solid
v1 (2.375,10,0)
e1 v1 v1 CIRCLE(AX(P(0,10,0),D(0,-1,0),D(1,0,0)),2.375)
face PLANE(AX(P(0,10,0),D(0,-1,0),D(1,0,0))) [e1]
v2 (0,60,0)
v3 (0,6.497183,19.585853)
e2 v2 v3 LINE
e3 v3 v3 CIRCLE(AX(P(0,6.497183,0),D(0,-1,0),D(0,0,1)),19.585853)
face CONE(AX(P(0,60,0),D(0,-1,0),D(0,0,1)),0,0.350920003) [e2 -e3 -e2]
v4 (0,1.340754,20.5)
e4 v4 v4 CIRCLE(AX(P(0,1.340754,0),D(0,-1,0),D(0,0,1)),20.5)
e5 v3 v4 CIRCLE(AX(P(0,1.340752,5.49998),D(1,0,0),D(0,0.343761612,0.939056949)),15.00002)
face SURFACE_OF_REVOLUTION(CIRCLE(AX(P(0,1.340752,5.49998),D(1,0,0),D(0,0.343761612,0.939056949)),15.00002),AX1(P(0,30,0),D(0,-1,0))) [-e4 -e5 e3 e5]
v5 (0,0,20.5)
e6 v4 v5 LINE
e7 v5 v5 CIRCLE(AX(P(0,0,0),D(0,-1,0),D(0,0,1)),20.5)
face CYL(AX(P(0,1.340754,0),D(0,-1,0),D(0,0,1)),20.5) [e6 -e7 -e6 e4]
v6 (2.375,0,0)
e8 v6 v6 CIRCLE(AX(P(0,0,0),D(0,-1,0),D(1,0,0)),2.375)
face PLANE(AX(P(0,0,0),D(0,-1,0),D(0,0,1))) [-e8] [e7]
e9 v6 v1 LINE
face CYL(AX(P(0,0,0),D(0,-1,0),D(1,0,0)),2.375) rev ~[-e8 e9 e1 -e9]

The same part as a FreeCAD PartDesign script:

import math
import FreeCAD as App
import Part
import Sketcher

doc = App.newDocument("Part")
body = doc.addObject("PartDesign::Body", "Body")

# Sketch on YZ plane
sketch1 = body.newObject("Sketcher::SketchObject", "Sketch")
sketch1.AttachmentSupport = (doc.getObject("YZ_Plane"), [""])
sketch1.MapMode = "FlatFace"
sketch1.addGeometry(Part.LineSegment(App.Vector(0, 20.5, 0), App.Vector(0, 0, 0)), False)
sketch1.addGeometry(Part.LineSegment(App.Vector(0, 0, 0), App.Vector(60, 0, 0)), False)
sketch1.addGeometry(Part.LineSegment(App.Vector(60, 0, 0), App.Vector(6.5, 19.6, 0)), False)
sketch1.addGeometry(Part.ArcOfCircle(Part.Circle(App.Vector(1.3, 5.5, 0), App.Vector(0, 0, 1), 15), math.radians(70), math.radians(90)), False)
sketch1.addGeometry(Part.LineSegment(App.Vector(1.3, 20.5, 0), App.Vector(0, 20.5, 0)), False)
sketch1.addConstraint(Sketcher.Constraint("Coincident", 0, 2, 1, 1))
sketch1.addConstraint(Sketcher.Constraint("Coincident", 1, 2, 2, 1))
sketch1.addConstraint(Sketcher.Constraint("Tangent", 2, 2, 3, 1))
sketch1.addConstraint(Sketcher.Constraint("Tangent", 3, 2, 4, 1))
sketch1.addConstraint(Sketcher.Constraint("Coincident", 4, 2, 0, 1))
sketch1.addConstraint(Sketcher.Constraint("Vertical", 0))
sketch1.addConstraint(Sketcher.Constraint("Horizontal", 1))
sketch1.addConstraint(Sketcher.Constraint("Horizontal", 4))
sketch1.addConstraint(Sketcher.Constraint("Coincident", 0, 2, -1, 1))
sketch1.addConstraint(Sketcher.Constraint("DistanceX", 1, 1, 1, 2, 60.0))
sketch1.addConstraint(Sketcher.Constraint("DistanceY", 0, 2, 0, 1, 20.5))
sketch1.addConstraint(Sketcher.Constraint("Radius", 3, 15.00002))
sketch1.addConstraint(Sketcher.Constraint("DistanceX", 4, 2, 4, 1, 1.340754))
revolution = body.newObject("PartDesign::Revolution", "Revolution")
revolution.Profile = sketch1
revolution.ReferenceAxis = (sketch1, ["H_Axis"])
revolution.Angle = 360

# Sketch on XZ plane
sketch2 = body.newObject("Sketcher::SketchObject", "Sketch001")
sketch2.AttachmentSupport = (doc.getObject("XZ_Plane"), [""])
sketch2.MapMode = "FlatFace"
sketch2.addGeometry(Part.Circle(App.Vector(0, 0, 0), App.Vector(0, 0, 1), 2.4), False)
sketch2.addConstraint(Sketcher.Constraint("Coincident", 0, 3, -1, 1))
sketch2.addConstraint(Sketcher.Constraint("Diameter", 0, 4.75))
pocket1 = body.newObject("PartDesign::Pocket", "Pocket")
pocket1.Profile = sketch2
pocket1.Length = 10

doc.recompute()
